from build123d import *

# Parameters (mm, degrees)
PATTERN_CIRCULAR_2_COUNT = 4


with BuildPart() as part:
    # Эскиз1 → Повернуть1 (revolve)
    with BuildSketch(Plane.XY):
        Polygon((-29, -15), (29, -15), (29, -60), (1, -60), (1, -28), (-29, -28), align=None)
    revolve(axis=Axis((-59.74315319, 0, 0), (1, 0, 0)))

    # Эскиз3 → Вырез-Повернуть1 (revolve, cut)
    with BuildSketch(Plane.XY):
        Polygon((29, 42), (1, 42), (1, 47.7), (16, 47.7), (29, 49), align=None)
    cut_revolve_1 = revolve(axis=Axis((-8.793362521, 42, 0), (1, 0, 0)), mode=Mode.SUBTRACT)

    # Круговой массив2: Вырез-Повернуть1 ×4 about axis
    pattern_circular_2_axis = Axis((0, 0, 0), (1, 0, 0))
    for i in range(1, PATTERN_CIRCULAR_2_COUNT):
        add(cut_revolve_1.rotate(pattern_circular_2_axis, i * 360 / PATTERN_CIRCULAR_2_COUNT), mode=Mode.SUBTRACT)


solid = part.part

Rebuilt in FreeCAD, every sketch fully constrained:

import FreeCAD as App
import Part
import Sketcher

V = App.Vector


def add_polygon(sketch, points):
    """Adds a closed chain of lines whose ends are joined by coincident constraints."""
    first, n = sketch.GeometryCount, len(points)
    for a, b in zip(points, points[1:] + points[:1]):
        sketch.addGeometry(Part.LineSegment(App.Vector(*a, 0), App.Vector(*b, 0)), False)
    for i in range(n):
        sketch.addConstraint(Sketcher.Constraint("Coincident", first + i, 2, first + (i + 1) % n, 1))

doc = App.newDocument("Part")
body = doc.addObject("PartDesign::Body", "Body")

# Sketch on XY plane
sketch1 = body.newObject("Sketcher::SketchObject", "Sketch")
sketch1.AttachmentSupport = (doc.getObject("XY_Plane"), [""])
sketch1.MapMode = "FlatFace"
add_polygon(sketch1, [(29, -15), (-29, -15), (-29, -28), (1, -28), (1, -60), (29, -60)])  # lines 0-5
sketch1.addConstraint([
    Sketcher.Constraint("Horizontal", 0),
    Sketcher.Constraint("Vertical", 1),
    Sketcher.Constraint("Horizontal", 2),
    Sketcher.Constraint("Vertical", 3),
    Sketcher.Constraint("Horizontal", 4),
    Sketcher.Constraint("Vertical", 5),
    Sketcher.Constraint("DistanceX", 0, 2, 0, 1, 58.0),
    Sketcher.Constraint("DistanceX", 2, 1, 2, 2, 30.0),
    Sketcher.Constraint("DistanceY", 1, 2, 1, 1, 13.0),
    Sketcher.Constraint("DistanceY", 3, 2, 3, 1, 32.0),
    Sketcher.Constraint("DistanceX", 0, 2, -1, 1, 29.0),
    Sketcher.Constraint("DistanceY", 0, 2, -1, 1, 15.0),
])
revolution = body.newObject("PartDesign::Revolution", "Revolution")
revolution.Profile = sketch1
revolution.ReferenceAxis = (sketch1, ["H_Axis"])
revolution.Angle = 360

# Sketch on XY plane
sketch2 = body.newObject("Sketcher::SketchObject", "Sketch001")
sketch2.AttachmentSupport = (doc.getObject("XY_Plane"), [""])
sketch2.MapMode = "FlatFace"
add_polygon(sketch2, [(1, 42), (29, 42), (29, 49), (16, 48), (1, 48)])  # lines 0-4
sketch2.addGeometry(Part.LineSegment(V(1, 42, 0), V(29, 42, 0)), True)  # axis
sketch2.addConstraint([
    Sketcher.Constraint("Horizontal", 0),
    Sketcher.Constraint("Vertical", 1),
    Sketcher.Constraint("Horizontal", 3),
    Sketcher.Constraint("Vertical", 4),
    Sketcher.Constraint("Horizontal", 5),
    Sketcher.Constraint("Coincident", 5, 1, 4, 2),
    Sketcher.Constraint("Vertical", 1, 2, 5, 2),
    Sketcher.Constraint("DistanceX", 0, 1, 0, 2, 28.0),
    Sketcher.Constraint("DistanceX", 3, 2, 3, 1, 15.0),
    Sketcher.Constraint("DistanceY", 1, 1, 1, 2, 7.0),
    Sketcher.Constraint("DistanceY", 4, 2, 4, 1, 5.7),
    Sketcher.Constraint("DistanceX", -1, 1, 0, 2, 29.0),
    Sketcher.Constraint("DistanceY", -1, 1, 0, 2, 42.0),
])
groove = body.newObject("PartDesign::Groove", "Groove")
groove.Profile = sketch2
groove.ReferenceAxis = (sketch2, ["Axis0"])
groove.Angle = 360
doc.recompute()

polarpattern = body.newObject("PartDesign::PolarPattern", "PolarPattern")
polarpattern.Originals = [groove]
polarpattern.Axis = (doc.getObject("X_Axis"), [""])
polarpattern.Angle = 360
polarpattern.Occurrences = 4
body.Tip = polarpattern

doc.recompute()
